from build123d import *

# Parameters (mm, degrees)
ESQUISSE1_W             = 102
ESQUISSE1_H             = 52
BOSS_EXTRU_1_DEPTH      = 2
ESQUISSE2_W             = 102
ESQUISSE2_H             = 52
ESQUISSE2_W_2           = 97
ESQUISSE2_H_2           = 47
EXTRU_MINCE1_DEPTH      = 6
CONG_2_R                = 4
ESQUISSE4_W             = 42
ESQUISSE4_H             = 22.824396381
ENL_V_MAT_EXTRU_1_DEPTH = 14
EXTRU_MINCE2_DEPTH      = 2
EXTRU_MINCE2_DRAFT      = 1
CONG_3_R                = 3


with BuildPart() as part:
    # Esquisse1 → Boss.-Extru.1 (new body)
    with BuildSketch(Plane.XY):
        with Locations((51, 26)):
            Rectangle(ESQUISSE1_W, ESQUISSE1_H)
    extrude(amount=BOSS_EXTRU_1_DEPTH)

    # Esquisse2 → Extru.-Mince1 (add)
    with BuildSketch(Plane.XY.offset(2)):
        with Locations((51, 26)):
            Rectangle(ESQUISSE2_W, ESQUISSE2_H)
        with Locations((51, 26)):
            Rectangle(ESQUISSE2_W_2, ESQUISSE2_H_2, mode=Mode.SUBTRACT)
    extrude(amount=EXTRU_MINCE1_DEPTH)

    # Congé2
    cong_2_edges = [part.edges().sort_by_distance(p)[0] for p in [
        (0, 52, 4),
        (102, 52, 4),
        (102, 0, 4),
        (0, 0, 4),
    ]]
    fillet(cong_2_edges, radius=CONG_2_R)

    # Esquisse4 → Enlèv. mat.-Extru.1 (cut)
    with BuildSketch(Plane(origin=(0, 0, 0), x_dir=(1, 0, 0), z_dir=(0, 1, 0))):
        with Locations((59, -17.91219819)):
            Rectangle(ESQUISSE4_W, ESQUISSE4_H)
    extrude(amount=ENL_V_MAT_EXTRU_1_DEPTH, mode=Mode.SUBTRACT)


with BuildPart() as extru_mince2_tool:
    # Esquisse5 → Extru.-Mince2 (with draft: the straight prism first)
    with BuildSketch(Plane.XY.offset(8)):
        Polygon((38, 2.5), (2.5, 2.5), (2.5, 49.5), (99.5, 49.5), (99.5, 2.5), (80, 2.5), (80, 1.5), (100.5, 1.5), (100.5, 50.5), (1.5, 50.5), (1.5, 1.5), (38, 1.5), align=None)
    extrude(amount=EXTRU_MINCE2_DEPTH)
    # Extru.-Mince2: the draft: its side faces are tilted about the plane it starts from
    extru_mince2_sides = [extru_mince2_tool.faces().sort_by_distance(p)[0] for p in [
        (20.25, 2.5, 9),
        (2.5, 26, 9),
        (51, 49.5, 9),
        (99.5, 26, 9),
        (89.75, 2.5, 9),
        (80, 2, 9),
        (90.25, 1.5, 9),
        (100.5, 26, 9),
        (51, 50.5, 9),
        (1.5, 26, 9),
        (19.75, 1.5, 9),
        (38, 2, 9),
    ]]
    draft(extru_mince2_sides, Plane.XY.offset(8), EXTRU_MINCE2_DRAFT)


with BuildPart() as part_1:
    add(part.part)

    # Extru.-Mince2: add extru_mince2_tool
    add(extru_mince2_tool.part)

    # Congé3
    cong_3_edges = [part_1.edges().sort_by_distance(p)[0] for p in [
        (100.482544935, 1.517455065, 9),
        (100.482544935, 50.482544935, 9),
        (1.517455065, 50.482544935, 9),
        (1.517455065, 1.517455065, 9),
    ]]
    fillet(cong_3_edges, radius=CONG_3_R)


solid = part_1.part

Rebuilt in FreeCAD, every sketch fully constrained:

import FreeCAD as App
import Part
import Sketcher
from FreeCAD import Vector


def edges_at(feature, points):
    """Names of the edges that pass closest to the given points."""
    edges = feature.Shape.Edges
    near = lambda p: min(range(len(edges)), key=lambda i: edges[i].distToShape(Part.Vertex(*p))[0])
    return sorted({f"Edge{near(p) + 1}" for p in points})


def faces_at(feature, points):
    """Names of the faces that lie closest to the given points."""
    faces = feature.Shape.Faces
    near = lambda p: min(range(len(faces)), key=lambda i: faces[i].distToShape(Part.Vertex(*p))[0])
    return sorted({f"Face{near(p) + 1}" for p in points})


def add_polygon(sketch, points):
    """Adds a closed chain of lines whose ends are joined by coincident constraints."""
    first, n = sketch.GeometryCount, len(points)
    for a, b in zip(points, points[1:] + points[:1]):
        sketch.addGeometry(Part.LineSegment(App.Vector(*a, 0), App.Vector(*b, 0)), False)
    for i in range(n):
        sketch.addConstraint(Sketcher.Constraint("Coincident", first + i, 2, first + (i + 1) % n, 1))

doc = App.newDocument("Part")
params = doc.addObject("Spreadsheet::Sheet", "Params")
for row, (alias, value) in enumerate([
    ("sketch1_width", "102 mm"),
    ("sketch1_height", "52 mm"),
    ("pad1_length", "2 mm"),
    ("sketch2_width", "102 mm"),
    ("sketch2_width2", "97 mm"),
    ("sketch2_height", "52 mm"),
    ("sketch2_height2", "47 mm"),
    ("pad2_length", "6 mm"),
    ("fillet_radius", "4 mm"),
    ("sketch3_width", "42 mm"),
    ("pocket1_length", "14 mm"),
    ("sketch4_width", "97 mm"),
    ("sketch4_width2", "99 mm"),
    ("sketch4_height", "47 mm"),
    ("sketch4_height2", "1 mm"),
    ("sketch4_height3", "49 mm"),
    ("pad3_length", "2 mm"),
    ("draft_angle", "1 deg"),
    ("fillet2_radius", "3 mm"),
], start=1):
    params.set(f"A{row}", alias)
    params.set(f"B{row}", "=" + value)
    params.setAlias(f"B{row}", alias)

body = doc.addObject("PartDesign::Body", "Body")

sketch1 = body.newObject("Sketcher::SketchObject", "Sketch")
sketch1.AttachmentSupport = (doc.getObject("XY_Plane"), [""])
sketch1.MapMode = "FlatFace"
add_polygon(sketch1, [(0, 52), (0, 0), (102, 0), (102, 52)])
sketch1.addConstraint([
    Sketcher.Constraint("Vertical", 0),
    Sketcher.Constraint("Horizontal", 1),
    Sketcher.Constraint("Vertical", 2),
    Sketcher.Constraint("Horizontal", 3),
    Sketcher.Constraint("Coincident", 0, 2, -1, 1),
    Sketcher.Constraint("DistanceX", 1, 1, 1, 2, 102.0),
    Sketcher.Constraint("DistanceY", 0, 2, 0, 1, 52.0),
])
sketch1.setExpression("Constraints[9]", "Params.sketch1_width")
sketch1.setExpression("Constraints[10]", "Params.sketch1_height")
pad1 = body.newObject("PartDesign::Pad", "Pad")
pad1.Profile = sketch1
pad1.setExpression("Length", "Params.pad1_length")

sketch2 = body.newObject("Sketcher::SketchObject", "Sketch001")
sketch2.AttachmentSupport = (doc.getObject("XY_Plane"), [""])
sketch2.MapMode = "FlatFace"
sketch2.AttachmentOffset = App.Placement(Vector(0, 0, 2), App.Rotation())
add_polygon(sketch2, [(0, 52), (0, 0), (102, 0), (102, 52)])
add_polygon(sketch2, [(100, 2), (2, 2), (2, 50), (100, 50)])
sketch2.addConstraint([
    Sketcher.Constraint("Vertical", 0),
    Sketcher.Constraint("Horizontal", 1),
    Sketcher.Constraint("Vertical", 2),
    Sketcher.Constraint("Horizontal", 3),
    Sketcher.Constraint("Horizontal", 4),
    Sketcher.Constraint("Vertical", 5),
    Sketcher.Constraint("Horizontal", 6),
    Sketcher.Constraint("Vertical", 7),
    Sketcher.Constraint("Coincident", 0, 2, -1, 1),
    Sketcher.Constraint("DistanceX", 1, 1, 1, 2, 102.0),
    Sketcher.Constraint("DistanceX", 4, 2, 4, 1, 97.0),
    Sketcher.Constraint("DistanceY", 0, 2, 0, 1, 52.0),
    Sketcher.Constraint("DistanceY", 5, 1, 5, 2, 47.0),
    Sketcher.Constraint("DistanceX", -1, 1, 4, 2, 2.5),
    Sketcher.Constraint("DistanceY", -1, 1, 4, 2, 2.5),
])
sketch2.setExpression("Constraints[17]", "Params.sketch2_width")
sketch2.setExpression("Constraints[18]", "Params.sketch2_width2")
sketch2.setExpression("Constraints[19]", "Params.sketch2_height")
sketch2.setExpression("Constraints[20]", "Params.sketch2_height2")
pad2 = body.newObject("PartDesign::Pad", "Pad001")
pad2.Profile = sketch2
pad2.setExpression("Length", "Params.pad2_length")
doc.recompute()

fillet = body.newObject("PartDesign::Fillet", "Fillet")
fillet.Base = (pad2, edges_at(pad2, [
    (0, 52, 4),
    (102, 52, 4),
    (102, 0, 4),
    (0, 0, 4),
]))
fillet.setExpression("Radius", "Params.fillet_radius")

sketch3 = body.newObject("Sketcher::SketchObject", "Sketch002")
sketch3.AttachmentSupport = (doc.getObject("XZ_Plane"), [""])
sketch3.MapMode = "FlatFace"
add_polygon(sketch3, [(38, 6), (38, 29), (80, 29), (80, 6)])
sketch3.addConstraint([
    Sketcher.Constraint("Vertical", 0),
    Sketcher.Constraint("Horizontal", 1),
    Sketcher.Constraint("Vertical", 2),
    Sketcher.Constraint("Horizontal", 3),
    Sketcher.Constraint("DistanceX", 1, 1, 1, 2, 42.0),
    Sketcher.Constraint("DistanceX", -1, 1, 0, 2, 38.0),
    Sketcher.Constraint("DistanceY", -1, 1, 2, 2, 6.5),
    Sketcher.Constraint("DistanceY", 0, 1, 0, 2, 22.824396),
])
sketch3.setExpression("Constraints[8]", "Params.sketch3_width")
pocket1 = body.newObject("PartDesign::Pocket", "Pocket")
pocket1.Profile = sketch3
pocket1.setExpression("Length", "Params.pocket1_length")
body2 = doc.addObject("PartDesign::Body", "Body001")

sketch4 = body2.newObject("Sketcher::SketchObject", "Sketch003")
sketch4.AttachmentSupport = (doc.getObject("XY_Plane001"), [""])
sketch4.MapMode = "FlatFace"
sketch4.AttachmentOffset = App.Placement(Vector(0, 0, 8), App.Rotation())
add_polygon(sketch4, [(38, 2.5), (2.5, 2.5), (2.5, 49.5), (99.5, 49.5), (99.5, 2.5), (80, 2.5), (80, 1.5), (100.5, 1.5), (100.5, 50.5), (1.5, 50.5), (1.5, 1.5), (38, 1.5)])
sketch4.addConstraint([
    Sketcher.Constraint("Horizontal", 0),
    Sketcher.Constraint("Vertical", 1),
    Sketcher.Constraint("Horizontal", 2),
    Sketcher.Constraint("Vertical", 3),
    Sketcher.Constraint("Horizontal", 4),
    Sketcher.Constraint("Vertical", 5),
    Sketcher.Constraint("Horizontal", 6),
    Sketcher.Constraint("Vertical", 7),
    Sketcher.Constraint("Horizontal", 8),
    Sketcher.Constraint("Vertical", 9),
    Sketcher.Constraint("Horizontal", 10),
    Sketcher.Constraint("Vertical", 11),
    Sketcher.Constraint("Horizontal", 0, 2, 3, 2),
    Sketcher.Constraint("Horizontal", 6, 2, 9, 2),
    Sketcher.Constraint("DistanceX", 2, 1, 2, 2, 97.0),
    Sketcher.Constraint("DistanceX", 8, 2, 8, 1, 99.0),
    Sketcher.Constraint("DistanceY", 1, 1, 1, 2, 47.0),
    Sketcher.Constraint("DistanceY", 5, 2, 5, 1, 1.0),
    Sketcher.Constraint("DistanceY", 7, 1, 7, 2, 49.0),
    Sketcher.Constraint("DistanceX", 0, 2, 0, 1, 35.5),
    Sketcher.Constraint("DistanceX", 4, 2, 4, 1, 19.5),
    Sketcher.Constraint("DistanceX", 6, 1, 6, 2, 20.5),
    Sketcher.Constraint("DistanceX", -1, 1, 4, 2, 80.0),
    Sketcher.Constraint("DistanceY", -1, 1, 0, 2, 2.5),
])
sketch4.setExpression("Constraints[26]", "Params.sketch4_width")
sketch4.setExpression("Constraints[27]", "Params.sketch4_width2")
sketch4.setExpression("Constraints[28]", "Params.sketch4_height")
sketch4.setExpression("Constraints[29]", "Params.sketch4_height2")
sketch4.setExpression("Constraints[30]", "Params.sketch4_height3")
pad3 = body2.newObject("PartDesign::Pad", "Pad002")
pad3.Profile = sketch4
pad3.setExpression("Length", "Params.pad3_length")
doc.recompute()

datumplane = body2.newObject("PartDesign::Plane", "DatumPlane")
datumplane.AttachmentSupport = (doc.getObject("XY_Plane001"), [""])
datumplane.MapMode = "FlatFace"
datumplane.AttachmentOffset = App.Placement(Vector(0, 0, 8), App.Rotation())
draft = body2.newObject("PartDesign::Draft", "Draft")
draft.Base = (pad3, faces_at(pad3, [
    (20.25, 2.5, 9),
    (2.5, 26, 9),
    (51, 49.5, 9),
    (99.5, 26, 9),
    (89.75, 2.5, 9),
    (80, 2, 9),
    (90.25, 1.5, 9),
    (100.5, 26, 9),
    (51, 50.5, 9),
    (1.5, 26, 9),
    (19.75, 1.5, 9),
    (38, 2, 9),
]))
draft.NeutralPlane = (datumplane, [""])
draft.setExpression("Angle", "Params.draft_angle")
draft.Reversed = False
doc.recompute()

boolean = body.newObject("PartDesign::Boolean", "Boolean")
boolean.Type = "Fuse"
boolean.addObjects([body2])
doc.recompute()

fillet2 = body.newObject("PartDesign::Fillet", "Fillet001")
fillet2.Base = (boolean, edges_at(boolean, [
    (100.483, 1.517, 9),
    (100.483, 50.483, 9),
    (1.517, 50.483, 9),
    (1.517, 1.517, 9),
]))
fillet2.setExpression("Radius", "Params.fillet2_radius")

doc.recompute()
